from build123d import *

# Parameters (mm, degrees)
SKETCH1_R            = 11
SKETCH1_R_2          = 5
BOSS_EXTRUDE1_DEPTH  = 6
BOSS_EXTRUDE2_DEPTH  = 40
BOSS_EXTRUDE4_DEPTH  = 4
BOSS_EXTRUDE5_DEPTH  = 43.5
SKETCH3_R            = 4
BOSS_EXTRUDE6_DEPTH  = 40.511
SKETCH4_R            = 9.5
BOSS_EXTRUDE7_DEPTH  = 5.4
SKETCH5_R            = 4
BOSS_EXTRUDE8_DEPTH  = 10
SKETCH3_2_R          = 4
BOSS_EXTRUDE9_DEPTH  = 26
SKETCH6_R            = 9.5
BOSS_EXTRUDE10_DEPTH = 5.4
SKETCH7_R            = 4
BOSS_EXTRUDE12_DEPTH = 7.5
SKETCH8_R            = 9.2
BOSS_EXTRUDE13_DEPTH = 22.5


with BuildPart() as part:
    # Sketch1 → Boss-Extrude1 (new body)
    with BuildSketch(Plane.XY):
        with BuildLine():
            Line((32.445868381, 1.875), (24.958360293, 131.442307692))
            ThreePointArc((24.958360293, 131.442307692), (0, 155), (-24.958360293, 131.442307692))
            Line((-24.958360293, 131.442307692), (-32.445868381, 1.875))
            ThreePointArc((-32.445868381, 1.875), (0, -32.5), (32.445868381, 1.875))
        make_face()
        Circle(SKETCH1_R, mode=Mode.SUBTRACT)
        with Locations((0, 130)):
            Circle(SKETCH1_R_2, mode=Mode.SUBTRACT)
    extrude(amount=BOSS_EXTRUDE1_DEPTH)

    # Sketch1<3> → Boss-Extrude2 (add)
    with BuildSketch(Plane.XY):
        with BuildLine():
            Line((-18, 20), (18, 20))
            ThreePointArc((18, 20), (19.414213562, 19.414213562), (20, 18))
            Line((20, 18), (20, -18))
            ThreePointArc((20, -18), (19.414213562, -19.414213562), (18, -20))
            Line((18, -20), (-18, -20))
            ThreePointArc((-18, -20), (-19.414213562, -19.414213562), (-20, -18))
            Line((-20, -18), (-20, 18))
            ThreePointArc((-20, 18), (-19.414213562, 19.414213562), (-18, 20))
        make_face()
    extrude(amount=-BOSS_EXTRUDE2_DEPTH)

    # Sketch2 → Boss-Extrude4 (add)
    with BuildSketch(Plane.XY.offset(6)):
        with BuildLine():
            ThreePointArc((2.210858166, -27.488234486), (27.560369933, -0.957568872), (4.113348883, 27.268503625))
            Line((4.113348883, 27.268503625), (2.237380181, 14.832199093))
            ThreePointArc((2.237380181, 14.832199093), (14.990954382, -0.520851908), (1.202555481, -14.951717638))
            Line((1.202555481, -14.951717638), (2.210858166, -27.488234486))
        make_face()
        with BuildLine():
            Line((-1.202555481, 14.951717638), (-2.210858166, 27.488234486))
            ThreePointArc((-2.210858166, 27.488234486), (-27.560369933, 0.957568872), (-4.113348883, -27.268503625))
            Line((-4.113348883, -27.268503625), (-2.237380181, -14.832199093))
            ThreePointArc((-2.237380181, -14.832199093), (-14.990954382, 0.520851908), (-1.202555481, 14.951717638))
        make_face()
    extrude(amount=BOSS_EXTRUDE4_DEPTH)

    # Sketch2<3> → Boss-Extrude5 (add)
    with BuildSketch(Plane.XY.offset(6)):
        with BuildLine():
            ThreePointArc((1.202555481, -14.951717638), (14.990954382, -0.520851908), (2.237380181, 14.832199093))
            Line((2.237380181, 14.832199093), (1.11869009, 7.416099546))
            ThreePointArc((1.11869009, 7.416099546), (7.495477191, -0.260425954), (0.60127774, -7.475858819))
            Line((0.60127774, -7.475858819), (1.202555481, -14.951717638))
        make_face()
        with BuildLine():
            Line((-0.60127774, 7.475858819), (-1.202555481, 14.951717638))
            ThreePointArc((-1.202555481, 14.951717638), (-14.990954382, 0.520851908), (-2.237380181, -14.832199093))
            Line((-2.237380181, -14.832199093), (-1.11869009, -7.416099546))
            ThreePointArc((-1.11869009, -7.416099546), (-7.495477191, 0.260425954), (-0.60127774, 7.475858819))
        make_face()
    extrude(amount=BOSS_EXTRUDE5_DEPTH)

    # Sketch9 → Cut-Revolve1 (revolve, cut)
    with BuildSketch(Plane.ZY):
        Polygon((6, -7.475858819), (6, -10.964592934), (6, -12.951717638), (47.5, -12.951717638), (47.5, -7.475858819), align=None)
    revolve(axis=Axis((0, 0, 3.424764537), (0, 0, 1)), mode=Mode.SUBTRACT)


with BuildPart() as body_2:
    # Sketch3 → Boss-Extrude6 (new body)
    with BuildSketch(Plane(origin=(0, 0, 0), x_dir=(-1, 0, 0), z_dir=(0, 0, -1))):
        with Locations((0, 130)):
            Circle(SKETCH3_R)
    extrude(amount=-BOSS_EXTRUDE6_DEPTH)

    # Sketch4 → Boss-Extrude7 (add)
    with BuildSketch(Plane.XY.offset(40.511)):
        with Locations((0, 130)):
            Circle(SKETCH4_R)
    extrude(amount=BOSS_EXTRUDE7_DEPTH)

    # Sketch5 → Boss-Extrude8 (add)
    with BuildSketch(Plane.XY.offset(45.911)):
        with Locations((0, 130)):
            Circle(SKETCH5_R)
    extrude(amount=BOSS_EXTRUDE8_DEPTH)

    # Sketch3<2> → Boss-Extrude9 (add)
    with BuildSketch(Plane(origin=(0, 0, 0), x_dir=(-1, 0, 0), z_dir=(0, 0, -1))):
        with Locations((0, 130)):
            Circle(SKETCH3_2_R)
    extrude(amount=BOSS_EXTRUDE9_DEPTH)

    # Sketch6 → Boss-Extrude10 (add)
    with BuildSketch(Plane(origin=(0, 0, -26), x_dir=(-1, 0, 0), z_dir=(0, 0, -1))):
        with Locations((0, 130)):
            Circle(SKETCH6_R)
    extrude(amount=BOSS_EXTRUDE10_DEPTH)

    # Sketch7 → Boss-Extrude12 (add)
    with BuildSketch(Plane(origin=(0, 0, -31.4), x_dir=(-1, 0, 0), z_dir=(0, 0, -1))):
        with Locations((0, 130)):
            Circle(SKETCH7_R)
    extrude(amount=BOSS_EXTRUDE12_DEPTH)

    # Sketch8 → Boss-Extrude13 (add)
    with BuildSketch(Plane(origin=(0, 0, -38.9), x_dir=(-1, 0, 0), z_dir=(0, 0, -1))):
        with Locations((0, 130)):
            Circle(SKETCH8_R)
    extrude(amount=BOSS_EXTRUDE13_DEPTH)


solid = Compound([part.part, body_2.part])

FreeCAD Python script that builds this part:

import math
import FreeCAD as App
import Part
import Sketcher
Q = App.Units.Quantity


def add_polygon(sketch, points):
    """Adds a closed chain of lines whose ends are joined by coincident constraints."""
    first, n = sketch.GeometryCount, len(points)
    for a, b in zip(points, points[1:] + points[:1]):
        sketch.addGeometry(Part.LineSegment(App.Vector(*a, 0), App.Vector(*b, 0)), False)
    for i in range(n):
        sketch.addConstraint(Sketcher.Constraint("Coincident", first + i, 2, first + (i + 1) % n, 1))

doc = App.newDocument("Part")
params = doc.addObject("Spreadsheet::Sheet", "Params")
for row, (alias, value) in enumerate([
    ("sketch1_diameter", "22 mm"),
    ("sketch1_diameter2", "10 mm"),
    ("sketch1_radius", "25 mm"),
    ("sketch1_radius2", "32.5 mm"),
    ("pad1_length", "6 mm"),
    ("sketch2_radius", "2 mm"),
    ("sketch2_width", "36 mm"),
    ("pad2_length", "40 mm"),
    ("sketch3_radius", "15 mm"),
    ("pad3_length", "4 mm"),
    ("sketch4_radius", "15 mm"),
    ("sketch4_radius2", "7.5 mm"),
    ("pad4_length", "43.5 mm"),
    ("sketch5_height", "41.5 mm"),
    ("groove_angle", "360 deg"),
    ("sketch6_diameter", "8 mm"),
    ("pad5_length", "40.511 mm"),
    ("sketch7_diameter", "19 mm"),
    ("pad6_length", "5.4 mm"),
    ("sketch8_diameter", "8 mm"),
    ("pad7_length", "10 mm"),
    ("sketch9_diameter", "8 mm"),
    ("pad8_length", "26 mm"),
    ("sketch10_diameter", "19 mm"),
    ("pad9_length", "5.4 mm"),
    ("sketch11_diameter", "8 mm"),
    ("pad10_length", "7.5 mm"),
    ("sketch12_diameter", "18.4 mm"),
    ("pad11_length", "22.5 mm"),
], start=1):
    params.set(f"A{row}", alias)
    params.set(f"B{row}", "=" + value)
    params.setAlias(f"B{row}", alias)

body = doc.addObject("PartDesign::Body", "Body")

sketch1 = body.newObject("Sketcher::SketchObject", "Sketch")
sketch1.AttachmentSupport = (doc.getObject("XY_Plane"), [""])
sketch1.MapMode = "FlatFace"
sketch1.addGeometry([
    Part.LineSegment(App.Vector(32, 2, 0), App.Vector(25, 131, 0)),
    Part.ArcOfCircle(Part.Circle(App.Vector(0, 130, 0), App.Vector(0, 0, 1), 25), math.radians(3), math.radians(177)),
    Part.LineSegment(App.Vector(-25, 131, 0), App.Vector(-32, 2, 0)),
    Part.ArcOfCircle(Part.Circle(App.Vector(0, 0, 0), App.Vector(0, 0, 1), 32), math.radians(177), math.radians(363)),
    Part.Circle(App.Vector(0, 0, 0), App.Vector(0, 0, 1), 11),
    Part.Circle(App.Vector(0, 130, 0), App.Vector(0, 0, 1), 5),
], False)
sketch1.addConstraint([
    Sketcher.Constraint("Tangent", 0, 2, 1, 1),
    Sketcher.Constraint("Tangent", 1, 2, 2, 1),
    Sketcher.Constraint("Tangent", 2, 2, 3, 1),
    Sketcher.Constraint("Tangent", 3, 2, 0, 1),
    Sketcher.Constraint("Coincident", 3, 3, -1, 1),
    Sketcher.Constraint("Coincident", 4, 3, -1, 1),
    Sketcher.Constraint("Coincident", 5, 3, 1, 3),
    Sketcher.Constraint("PointOnObject", 1, 3, -2),
    Sketcher.Constraint("Diameter", 4, Q("22 mm")),
    Sketcher.Constraint("Diameter", 5, Q("10 mm")),
    Sketcher.Constraint("Radius", 1, Q("25 mm")),
    Sketcher.Constraint("Radius", 3, Q("32.5 mm")),
    Sketcher.Constraint("DistanceY", -1, 1, 1, 3, Q("130 mm")),
])
sketch1.setExpression("Constraints[8]", "Params.sketch1_diameter")
sketch1.setExpression("Constraints[9]", "Params.sketch1_diameter2")
sketch1.setExpression("Constraints[10]", "Params.sketch1_radius")
sketch1.setExpression("Constraints[11]", "Params.sketch1_radius2")
pad1 = body.newObject("PartDesign::Pad", "Pad")
pad1.Profile = sketch1
pad1.setExpression("Length", "Params.pad1_length")

sketch2 = body.newObject("Sketcher::SketchObject", "Sketch001")
sketch2.AttachmentSupport = (doc.getObject("XY_Plane"), [""])
sketch2.MapMode = "FlatFace"
sketch2.addGeometry([
    Part.LineSegment(App.Vector(18, 20, 0), App.Vector(-18, 20, 0)),
    Part.ArcOfCircle(Part.Circle(App.Vector(-18, 18, 0), App.Vector(0, 0, 1), 2), math.radians(90), math.radians(180)),
    Part.LineSegment(App.Vector(-20, 18, 0), App.Vector(-20, -18, 0)),
    Part.ArcOfCircle(Part.Circle(App.Vector(-18, -18, 0), App.Vector(0, 0, 1), 2), math.radians(-180), math.radians(-90)),
    Part.LineSegment(App.Vector(-18, -20, 0), App.Vector(18, -20, 0)),
    Part.ArcOfCircle(Part.Circle(App.Vector(18, -18, 0), App.Vector(0, 0, 1), 2), math.radians(-90), math.radians(0)),
    Part.LineSegment(App.Vector(20, -18, 0), App.Vector(20, 18, 0)),
    Part.ArcOfCircle(Part.Circle(App.Vector(18, 18, 0), App.Vector(0, 0, 1), 2), math.radians(0), math.radians(90)),
], False)
sketch2.addConstraint([
    Sketcher.Constraint("Tangent", 0, 2, 1, 1),
    Sketcher.Constraint("Tangent", 1, 2, 2, 1),
    Sketcher.Constraint("Tangent", 2, 2, 3, 1),
    Sketcher.Constraint("Tangent", 3, 2, 4, 1),
    Sketcher.Constraint("Tangent", 4, 2, 5, 1),
    Sketcher.Constraint("Tangent", 5, 2, 6, 1),
    Sketcher.Constraint("Tangent", 6, 2, 7, 1),
    Sketcher.Constraint("Tangent", 7, 2, 0, 1),
    Sketcher.Constraint("Horizontal", 0),
    Sketcher.Constraint("Vertical", 2),
    Sketcher.Constraint("Horizontal", 4),
    Sketcher.Constraint("Vertical", 6),
    Sketcher.Constraint("Equal", 1, 3),
    Sketcher.Constraint("Equal", 3, 5),
    Sketcher.Constraint("Equal", 5, 7),
    Sketcher.Constraint("Symmetric", 1, 3, 5, 3, -1, 1),
    Sketcher.Constraint("Equal", 4, 2),
    Sketcher.Constraint("Radius", 1, Q("2 mm")),
    Sketcher.Constraint("DistanceX", 0, 2, 0, 1, Q("36 mm")),
])
sketch2.setExpression("Constraints[17]", "Params.sketch2_radius")
sketch2.setExpression("Constraints[18]", "Params.sketch2_width")
pad2 = body.newObject("PartDesign::Pad", "Pad001")
pad2.Profile = sketch2
pad2.setExpression("Length", "Params.pad2_length")
pad2.Reversed = True

sketch3 = body.newObject("Sketcher::SketchObject", "Sketch002")
sketch3.AttachmentSupport = (doc.getObject("XY_Plane"), [""])
sketch3.MapMode = "FlatFace"
sketch3.AttachmentOffset = App.Placement(App.Vector(0, 0, 6), App.Rotation())
sketch3.addGeometry([
    Part.ArcOfCircle(Part.Circle(App.Vector(0, 0, 0), App.Vector(0, 0, 1), 28), math.radians(-85), math.radians(81)),
    Part.LineSegment(App.Vector(4, 27, 0), App.Vector(2, 15, 0)),
    Part.ArcOfCircle(Part.Circle(App.Vector(0, 0, 0), App.Vector(0, 0, 1), 15), math.radians(-85), math.radians(81)),
    Part.LineSegment(App.Vector(1, -15, 0), App.Vector(2, -27, 0)),
    Part.LineSegment(App.Vector(-1, 15, 0), App.Vector(-2, 27, 0)),
    Part.ArcOfCircle(Part.Circle(App.Vector(0, 0, 0), App.Vector(0, 0, 1), 28), math.radians(95), math.radians(261)),
    Part.LineSegment(App.Vector(-4, -27, 0), App.Vector(-2, -15, 0)),
    Part.ArcOfCircle(Part.Circle(App.Vector(0, 0, 0), App.Vector(0, 0, 1), 15), math.radians(95), math.radians(261)),
], False)
sketch3.addConstraint([
    Sketcher.Constraint("Coincident", 0, 2, 1, 1),
    Sketcher.Constraint("Coincident", 1, 2, 2, 2),
    Sketcher.Constraint("Coincident", 2, 1, 3, 1),
    Sketcher.Constraint("Coincident", 3, 2, 0, 1),
    Sketcher.Constraint("Coincident", 4, 2, 5, 1),
    Sketcher.Constraint("Coincident", 5, 2, 6, 1),
    Sketcher.Constraint("Coincident", 6, 2, 7, 2),
    Sketcher.Constraint("Coincident", 7, 1, 4, 1),
    Sketcher.Constraint("Coincident", 0, 3, -1, 1),
    Sketcher.Constraint("Coincident", 2, 3, -1, 1),
    Sketcher.Constraint("Coincident", 5, 3, -1, 1),
    Sketcher.Constraint("Coincident", 7, 3, -1, 1),
    Sketcher.Constraint("Equal", 0, 5),
    Sketcher.Constraint("Equal", 2, 7),
    Sketcher.Constraint("Parallel", 3, 4),
    Sketcher.Constraint("Parallel", 1, 6),
    Sketcher.Constraint("Radius", 2, Q("15 mm")),
    Sketcher.Constraint("Radius", 0, Q("27.577 mm")),
    Sketcher.Constraint("DistanceY", -1, 1, 1, 2, Q("14.832199 mm")),
    Sketcher.Constraint("DistanceY", 6, 2, -1, 1, Q("14.832199 mm")),
    Sketcher.Constraint("DistanceX", -1, 1, 0, 2, Q("4.113349 mm")),
    Sketcher.Constraint("DistanceX", -1, 1, 3, 2, Q("2.210858 mm")),
    Sketcher.Constraint("DistanceX", 4, 2, -1, 1, Q("2.210858 mm")),
    Sketcher.Constraint("DistanceY", 2, 1, 6, 2, Q("0.119519 mm")),
])
sketch3.setExpression("Constraints[16]", "Params.sketch3_radius")
pad3 = body.newObject("PartDesign::Pad", "Pad002")
pad3.Profile = sketch3
pad3.setExpression("Length", "Params.pad3_length")

sketch4 = body.newObject("Sketcher::SketchObject", "Sketch003")
sketch4.AttachmentSupport = (doc.getObject("XY_Plane"), [""])
sketch4.MapMode = "FlatFace"
sketch4.AttachmentOffset = App.Placement(App.Vector(0, 0, 6), App.Rotation())
sketch4.addGeometry([
    Part.ArcOfCircle(Part.Circle(App.Vector(0, 0, 0), App.Vector(0, 0, 1), 15), math.radians(-85), math.radians(81)),
    Part.LineSegment(App.Vector(2, 15, 0), App.Vector(1, 7, 0)),
    Part.ArcOfCircle(Part.Circle(App.Vector(0, 0, 0), App.Vector(0, 0, 1), 8), math.radians(-85), math.radians(81)),
    Part.LineSegment(App.Vector(1, -7, 0), App.Vector(1, -15, 0)),
    Part.LineSegment(App.Vector(-1, 7, 0), App.Vector(-1, 15, 0)),
    Part.ArcOfCircle(Part.Circle(App.Vector(0, 0, 0), App.Vector(0, 0, 1), 15), math.radians(95), math.radians(261)),
    Part.LineSegment(App.Vector(-2, -15, 0), App.Vector(-1, -7, 0)),
    Part.ArcOfCircle(Part.Circle(App.Vector(0, 0, 0), App.Vector(0, 0, 1), 8), math.radians(95), math.radians(261)),
], False)
sketch4.addConstraint([
    Sketcher.Constraint("Coincident", 0, 2, 1, 1),
    Sketcher.Constraint("Coincident", 1, 2, 2, 2),
    Sketcher.Constraint("Coincident", 2, 1, 3, 1),
    Sketcher.Constraint("Coincident", 3, 2, 0, 1),
    Sketcher.Constraint("Coincident", 4, 2, 5, 1),
    Sketcher.Constraint("Coincident", 5, 2, 6, 1),
    Sketcher.Constraint("Coincident", 6, 2, 7, 2),
    Sketcher.Constraint("Coincident", 7, 1, 4, 1),
    Sketcher.Constraint("Coincident", 0, 3, -1, 1),
    Sketcher.Constraint("Coincident", 2, 3, -1, 1),
    Sketcher.Constraint("Coincident", 5, 3, -1, 1),
    Sketcher.Constraint("Coincident", 7, 3, -1, 1),
    Sketcher.Constraint("Equal", 0, 5),
    Sketcher.Constraint("Equal", 2, 7),
    Sketcher.Constraint("Parallel", 3, 4),
    Sketcher.Constraint("Parallel", 1, 6),
    Sketcher.Constraint("Radius", 0, Q("15 mm")),
    Sketcher.Constraint("Radius", 2, Q("7.5 mm")),
    Sketcher.Constraint("DistanceY", -1, 1, 0, 2, Q("14.832199 mm")),
    Sketcher.Constraint("DistanceY", -1, 1, 1, 2, Q("7.4161 mm")),
    Sketcher.Constraint("DistanceY", 5, 2, -1, 1, Q("14.832199 mm")),
    Sketcher.Constraint("DistanceY", 2, 1, -1, 1, Q("7.475859 mm")),
    Sketcher.Constraint("DistanceY", -1, 1, 7, 1, Q("7.475859 mm")),
    Sketcher.Constraint("DistanceY", 3, 2, 2, 1, Q("7.475859 mm")),
])
sketch4.setExpression("Constraints[16]", "Params.sketch4_radius")
sketch4.setExpression("Constraints[17]", "Params.sketch4_radius2")
pad4 = body.newObject("PartDesign::Pad", "Pad003")
pad4.Profile = sketch4
pad4.setExpression("Length", "Params.pad4_length")

sketch5 = body.newObject("Sketcher::SketchObject", "Sketch004")
sketch5.AttachmentSupport = (doc.getObject("YZ_Plane"), [""])
sketch5.MapMode = "FlatFace"
add_polygon(sketch5, [(-7, 6), (-13, 6), (-13, 48), (-7, 48)])
sketch5.addConstraint([
    Sketcher.Constraint("Horizontal", 0),
    Sketcher.Constraint("Vertical", 1),
    Sketcher.Constraint("Horizontal", 2),
    Sketcher.Constraint("Vertical", 3),
    Sketcher.Constraint("DistanceY", 1, 1, 1, 2, Q("41.5 mm")),
    Sketcher.Constraint("DistanceY", -1, 1, 0, 2, Q("6 mm")),
    Sketcher.Constraint("DistanceX", 0, 2, 0, 1, Q("5.475859 mm")),
    Sketcher.Constraint("DistanceX", 2, 2, -1, 1, Q("7.475859 mm")),
])
sketch5.setExpression("Constraints[8]", "Params.sketch5_height")
groove = body.newObject("PartDesign::Groove", "Groove")
groove.Profile = sketch5
groove.ReferenceAxis = (sketch5, ["V_Axis"])
groove.setExpression("Angle", "Params.groove_angle")
body2 = doc.addObject("PartDesign::Body", "Body001")

sketch6 = body2.newObject("Sketcher::SketchObject", "Sketch005")
sketch6.AttachmentSupport = (doc.getObject("XY_Plane001"), [""])
sketch6.MapMode = "FlatFace"
sketch6.addGeometry(Part.Circle(App.Vector(0, 130, 0), App.Vector(0, 0, 1), 4), False)
sketch6.addConstraint([
    Sketcher.Constraint("PointOnObject", 0, 3, -2),
    Sketcher.Constraint("Diameter", 0, Q("8 mm")),
    Sketcher.Constraint("DistanceY", -1, 1, 0, 3, Q("130 mm")),
])
sketch6.setExpression("Constraints[1]", "Params.sketch6_diameter")
pad5 = body2.newObject("PartDesign::Pad", "Pad004")
pad5.Profile = sketch6
pad5.setExpression("Length", "Params.pad5_length")

sketch7 = body2.newObject("Sketcher::SketchObject", "Sketch006")
sketch7.AttachmentSupport = (doc.getObject("XY_Plane001"), [""])
sketch7.MapMode = "FlatFace"
sketch7.AttachmentOffset = App.Placement(App.Vector(0, 0, 40.511), App.Rotation())
sketch7.addGeometry(Part.Circle(App.Vector(0, 130, 0), App.Vector(0, 0, 1), 10), False)
sketch7.addConstraint([
    Sketcher.Constraint("PointOnObject", 0, 3, -2),
    Sketcher.Constraint("Diameter", 0, Q("19 mm")),
    Sketcher.Constraint("DistanceY", -1, 1, 0, 3, Q("130 mm")),
])
sketch7.setExpression("Constraints[1]", "Params.sketch7_diameter")
pad6 = body2.newObject("PartDesign::Pad", "Pad005")
pad6.Profile = sketch7
pad6.setExpression("Length", "Params.pad6_length")

sketch8 = body2.newObject("Sketcher::SketchObject", "Sketch007")
sketch8.AttachmentSupport = (doc.getObject("XY_Plane001"), [""])
sketch8.MapMode = "FlatFace"
sketch8.AttachmentOffset = App.Placement(App.Vector(0, 0, 45.911), App.Rotation())
sketch8.addGeometry(Part.Circle(App.Vector(0, 130, 0), App.Vector(0, 0, 1), 4), False)
sketch8.addConstraint([
    Sketcher.Constraint("PointOnObject", 0, 3, -2),
    Sketcher.Constraint("Diameter", 0, Q("8 mm")),
    Sketcher.Constraint("DistanceY", -1, 1, 0, 3, Q("130 mm")),
])
sketch8.setExpression("Constraints[1]", "Params.sketch8_diameter")
pad7 = body2.newObject("PartDesign::Pad", "Pad006")
pad7.Profile = sketch8
pad7.setExpression("Length", "Params.pad7_length")

sketch9 = body2.newObject("Sketcher::SketchObject", "Sketch008")
sketch9.AttachmentSupport = (doc.getObject("XY_Plane001"), [""])
sketch9.MapMode = "FlatFace"
sketch9.addGeometry(Part.Circle(App.Vector(0, 130, 0), App.Vector(0, 0, 1), 4), False)
sketch9.addConstraint([
    Sketcher.Constraint("PointOnObject", 0, 3, -2),
    Sketcher.Constraint("Diameter", 0, Q("8 mm")),
    Sketcher.Constraint("DistanceY", -1, 1, 0, 3, Q("130 mm")),
])
sketch9.setExpression("Constraints[1]", "Params.sketch9_diameter")
pad8 = body2.newObject("PartDesign::Pad", "Pad007")
pad8.Profile = sketch9
pad8.setExpression("Length", "Params.pad8_length")
pad8.Reversed = True

sketch10 = body2.newObject("Sketcher::SketchObject", "Sketch009")
sketch10.AttachmentSupport = (doc.getObject("XY_Plane001"), [""])
sketch10.MapMode = "FlatFace"
sketch10.AttachmentOffset = App.Placement(App.Vector(0, 0, -26), App.Rotation())
sketch10.addGeometry(Part.Circle(App.Vector(0, 130, 0), App.Vector(0, 0, 1), 10), False)
sketch10.addConstraint([
    Sketcher.Constraint("PointOnObject", 0, 3, -2),
    Sketcher.Constraint("Diameter", 0, Q("19 mm")),
    Sketcher.Constraint("DistanceY", -1, 1, 0, 3, Q("130 mm")),
])
sketch10.setExpression("Constraints[1]", "Params.sketch10_diameter")
pad9 = body2.newObject("PartDesign::Pad", "Pad008")
pad9.Profile = sketch10
pad9.setExpression("Length", "Params.pad9_length")
pad9.Reversed = True

sketch11 = body2.newObject("Sketcher::SketchObject", "Sketch010")
sketch11.AttachmentSupport = (doc.getObject("XY_Plane001"), [""])
sketch11.MapMode = "FlatFace"
sketch11.AttachmentOffset = App.Placement(App.Vector(0, 0, -31.4), App.Rotation())
sketch11.addGeometry(Part.Circle(App.Vector(0, 130, 0), App.Vector(0, 0, 1), 4), False)
sketch11.addConstraint([
    Sketcher.Constraint("PointOnObject", 0, 3, -2),
    Sketcher.Constraint("Diameter", 0, Q("8 mm")),
    Sketcher.Constraint("DistanceY", -1, 1, 0, 3, Q("130 mm")),
])
sketch11.setExpression("Constraints[1]", "Params.sketch11_diameter")
pad10 = body2.newObject("PartDesign::Pad", "Pad009")
pad10.Profile = sketch11
pad10.setExpression("Length", "Params.pad10_length")
pad10.Reversed = True

sketch12 = body2.newObject("Sketcher::SketchObject", "Sketch011")
sketch12.AttachmentSupport = (doc.getObject("XY_Plane001"), [""])
sketch12.MapMode = "FlatFace"
sketch12.AttachmentOffset = App.Placement(App.Vector(0, 0, -38.9), App.Rotation())
sketch12.addGeometry(Part.Circle(App.Vector(0, 130, 0), App.Vector(0, 0, 1), 9), False)
sketch12.addConstraint([
    Sketcher.Constraint("PointOnObject", 0, 3, -2),
    Sketcher.Constraint("Diameter", 0, Q("18.4 mm")),
    Sketcher.Constraint("DistanceY", -1, 1, 0, 3, Q("130 mm")),
])
sketch12.setExpression("Constraints[1]", "Params.sketch12_diameter")
pad11 = body2.newObject("PartDesign::Pad", "Pad010")
pad11.Profile = sketch12
pad11.setExpression("Length", "Params.pad11_length")
pad11.Reversed = True

doc.recompute()
